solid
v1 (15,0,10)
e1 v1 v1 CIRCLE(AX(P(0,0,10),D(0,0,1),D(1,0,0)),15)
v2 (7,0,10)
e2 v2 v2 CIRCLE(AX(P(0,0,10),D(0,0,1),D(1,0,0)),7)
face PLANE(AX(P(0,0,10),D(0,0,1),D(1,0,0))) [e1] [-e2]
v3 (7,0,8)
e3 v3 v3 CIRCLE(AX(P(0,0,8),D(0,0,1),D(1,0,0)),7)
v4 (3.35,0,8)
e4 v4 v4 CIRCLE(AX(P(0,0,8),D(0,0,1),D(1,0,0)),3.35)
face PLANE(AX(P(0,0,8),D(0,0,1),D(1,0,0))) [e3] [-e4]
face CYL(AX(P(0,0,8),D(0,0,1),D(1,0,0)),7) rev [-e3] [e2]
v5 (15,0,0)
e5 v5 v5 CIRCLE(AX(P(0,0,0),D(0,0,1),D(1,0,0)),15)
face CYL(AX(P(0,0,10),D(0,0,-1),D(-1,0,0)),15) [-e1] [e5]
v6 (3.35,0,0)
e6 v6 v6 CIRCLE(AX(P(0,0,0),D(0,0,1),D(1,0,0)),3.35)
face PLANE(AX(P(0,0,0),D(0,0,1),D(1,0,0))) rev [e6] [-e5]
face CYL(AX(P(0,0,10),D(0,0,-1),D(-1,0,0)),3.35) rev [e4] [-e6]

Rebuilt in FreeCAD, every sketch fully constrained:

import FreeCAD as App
import Part
import Sketcher
Q = App.Units.Quantity

doc = App.newDocument("Part")
body = doc.addObject("PartDesign::Body", "Body")

sketch1 = doc.addObject("Sketcher::SketchObject", "Sketch")
body.addObject(sketch1)
sketch1.AttachmentSupport = (doc.XY_Plane, [""])
sketch1.MapMode = "FlatFace"
sketch1.addGeometry([
    Part.Circle(App.Vector(0, 0, 0), App.Vector(0, 0, 1), 15),
    Part.Circle(App.Vector(0, 0, 0), App.Vector(0, 0, 1), 3.4),
], False)
sketch1.addConstraint([
    Sketcher.Constraint("Coincident", 0, 3, -1, 1),
    Sketcher.Constraint("Coincident", 1, 3, -1, 1),
    Sketcher.Constraint("Diameter", 0, Q("30 mm")),
    Sketcher.Constraint("Diameter", 1, Q("6.7 mm")),
])
pad1 = doc.addObject("PartDesign::Pad", "Pad")
body.addObject(pad1)
pad1.Profile = sketch1
pad1.Length = 10

sketch2 = doc.addObject("Sketcher::SketchObject", "Sketch001")
body.addObject(sketch2)
sketch2.AttachmentSupport = (doc.XY_Plane, [""])
sketch2.MapMode = "FlatFace"
sketch2.AttachmentOffset = App.Placement(App.Vector(0, 0, 10), App.Rotation())
sketch2.addGeometry(Part.Circle(App.Vector(0, 0, 0), App.Vector(0, 0, 1), 7), False)
sketch2.addConstraint([
    Sketcher.Constraint("Coincident", 0, 3, -1, 1),
    Sketcher.Constraint("Diameter", 0, Q("14 mm")),
])
pocket1 = doc.addObject("PartDesign::Pocket", "Pocket")
body.addObject(pocket1)
pocket1.Profile = sketch2
pocket1.Length = 2

doc.recompute()
